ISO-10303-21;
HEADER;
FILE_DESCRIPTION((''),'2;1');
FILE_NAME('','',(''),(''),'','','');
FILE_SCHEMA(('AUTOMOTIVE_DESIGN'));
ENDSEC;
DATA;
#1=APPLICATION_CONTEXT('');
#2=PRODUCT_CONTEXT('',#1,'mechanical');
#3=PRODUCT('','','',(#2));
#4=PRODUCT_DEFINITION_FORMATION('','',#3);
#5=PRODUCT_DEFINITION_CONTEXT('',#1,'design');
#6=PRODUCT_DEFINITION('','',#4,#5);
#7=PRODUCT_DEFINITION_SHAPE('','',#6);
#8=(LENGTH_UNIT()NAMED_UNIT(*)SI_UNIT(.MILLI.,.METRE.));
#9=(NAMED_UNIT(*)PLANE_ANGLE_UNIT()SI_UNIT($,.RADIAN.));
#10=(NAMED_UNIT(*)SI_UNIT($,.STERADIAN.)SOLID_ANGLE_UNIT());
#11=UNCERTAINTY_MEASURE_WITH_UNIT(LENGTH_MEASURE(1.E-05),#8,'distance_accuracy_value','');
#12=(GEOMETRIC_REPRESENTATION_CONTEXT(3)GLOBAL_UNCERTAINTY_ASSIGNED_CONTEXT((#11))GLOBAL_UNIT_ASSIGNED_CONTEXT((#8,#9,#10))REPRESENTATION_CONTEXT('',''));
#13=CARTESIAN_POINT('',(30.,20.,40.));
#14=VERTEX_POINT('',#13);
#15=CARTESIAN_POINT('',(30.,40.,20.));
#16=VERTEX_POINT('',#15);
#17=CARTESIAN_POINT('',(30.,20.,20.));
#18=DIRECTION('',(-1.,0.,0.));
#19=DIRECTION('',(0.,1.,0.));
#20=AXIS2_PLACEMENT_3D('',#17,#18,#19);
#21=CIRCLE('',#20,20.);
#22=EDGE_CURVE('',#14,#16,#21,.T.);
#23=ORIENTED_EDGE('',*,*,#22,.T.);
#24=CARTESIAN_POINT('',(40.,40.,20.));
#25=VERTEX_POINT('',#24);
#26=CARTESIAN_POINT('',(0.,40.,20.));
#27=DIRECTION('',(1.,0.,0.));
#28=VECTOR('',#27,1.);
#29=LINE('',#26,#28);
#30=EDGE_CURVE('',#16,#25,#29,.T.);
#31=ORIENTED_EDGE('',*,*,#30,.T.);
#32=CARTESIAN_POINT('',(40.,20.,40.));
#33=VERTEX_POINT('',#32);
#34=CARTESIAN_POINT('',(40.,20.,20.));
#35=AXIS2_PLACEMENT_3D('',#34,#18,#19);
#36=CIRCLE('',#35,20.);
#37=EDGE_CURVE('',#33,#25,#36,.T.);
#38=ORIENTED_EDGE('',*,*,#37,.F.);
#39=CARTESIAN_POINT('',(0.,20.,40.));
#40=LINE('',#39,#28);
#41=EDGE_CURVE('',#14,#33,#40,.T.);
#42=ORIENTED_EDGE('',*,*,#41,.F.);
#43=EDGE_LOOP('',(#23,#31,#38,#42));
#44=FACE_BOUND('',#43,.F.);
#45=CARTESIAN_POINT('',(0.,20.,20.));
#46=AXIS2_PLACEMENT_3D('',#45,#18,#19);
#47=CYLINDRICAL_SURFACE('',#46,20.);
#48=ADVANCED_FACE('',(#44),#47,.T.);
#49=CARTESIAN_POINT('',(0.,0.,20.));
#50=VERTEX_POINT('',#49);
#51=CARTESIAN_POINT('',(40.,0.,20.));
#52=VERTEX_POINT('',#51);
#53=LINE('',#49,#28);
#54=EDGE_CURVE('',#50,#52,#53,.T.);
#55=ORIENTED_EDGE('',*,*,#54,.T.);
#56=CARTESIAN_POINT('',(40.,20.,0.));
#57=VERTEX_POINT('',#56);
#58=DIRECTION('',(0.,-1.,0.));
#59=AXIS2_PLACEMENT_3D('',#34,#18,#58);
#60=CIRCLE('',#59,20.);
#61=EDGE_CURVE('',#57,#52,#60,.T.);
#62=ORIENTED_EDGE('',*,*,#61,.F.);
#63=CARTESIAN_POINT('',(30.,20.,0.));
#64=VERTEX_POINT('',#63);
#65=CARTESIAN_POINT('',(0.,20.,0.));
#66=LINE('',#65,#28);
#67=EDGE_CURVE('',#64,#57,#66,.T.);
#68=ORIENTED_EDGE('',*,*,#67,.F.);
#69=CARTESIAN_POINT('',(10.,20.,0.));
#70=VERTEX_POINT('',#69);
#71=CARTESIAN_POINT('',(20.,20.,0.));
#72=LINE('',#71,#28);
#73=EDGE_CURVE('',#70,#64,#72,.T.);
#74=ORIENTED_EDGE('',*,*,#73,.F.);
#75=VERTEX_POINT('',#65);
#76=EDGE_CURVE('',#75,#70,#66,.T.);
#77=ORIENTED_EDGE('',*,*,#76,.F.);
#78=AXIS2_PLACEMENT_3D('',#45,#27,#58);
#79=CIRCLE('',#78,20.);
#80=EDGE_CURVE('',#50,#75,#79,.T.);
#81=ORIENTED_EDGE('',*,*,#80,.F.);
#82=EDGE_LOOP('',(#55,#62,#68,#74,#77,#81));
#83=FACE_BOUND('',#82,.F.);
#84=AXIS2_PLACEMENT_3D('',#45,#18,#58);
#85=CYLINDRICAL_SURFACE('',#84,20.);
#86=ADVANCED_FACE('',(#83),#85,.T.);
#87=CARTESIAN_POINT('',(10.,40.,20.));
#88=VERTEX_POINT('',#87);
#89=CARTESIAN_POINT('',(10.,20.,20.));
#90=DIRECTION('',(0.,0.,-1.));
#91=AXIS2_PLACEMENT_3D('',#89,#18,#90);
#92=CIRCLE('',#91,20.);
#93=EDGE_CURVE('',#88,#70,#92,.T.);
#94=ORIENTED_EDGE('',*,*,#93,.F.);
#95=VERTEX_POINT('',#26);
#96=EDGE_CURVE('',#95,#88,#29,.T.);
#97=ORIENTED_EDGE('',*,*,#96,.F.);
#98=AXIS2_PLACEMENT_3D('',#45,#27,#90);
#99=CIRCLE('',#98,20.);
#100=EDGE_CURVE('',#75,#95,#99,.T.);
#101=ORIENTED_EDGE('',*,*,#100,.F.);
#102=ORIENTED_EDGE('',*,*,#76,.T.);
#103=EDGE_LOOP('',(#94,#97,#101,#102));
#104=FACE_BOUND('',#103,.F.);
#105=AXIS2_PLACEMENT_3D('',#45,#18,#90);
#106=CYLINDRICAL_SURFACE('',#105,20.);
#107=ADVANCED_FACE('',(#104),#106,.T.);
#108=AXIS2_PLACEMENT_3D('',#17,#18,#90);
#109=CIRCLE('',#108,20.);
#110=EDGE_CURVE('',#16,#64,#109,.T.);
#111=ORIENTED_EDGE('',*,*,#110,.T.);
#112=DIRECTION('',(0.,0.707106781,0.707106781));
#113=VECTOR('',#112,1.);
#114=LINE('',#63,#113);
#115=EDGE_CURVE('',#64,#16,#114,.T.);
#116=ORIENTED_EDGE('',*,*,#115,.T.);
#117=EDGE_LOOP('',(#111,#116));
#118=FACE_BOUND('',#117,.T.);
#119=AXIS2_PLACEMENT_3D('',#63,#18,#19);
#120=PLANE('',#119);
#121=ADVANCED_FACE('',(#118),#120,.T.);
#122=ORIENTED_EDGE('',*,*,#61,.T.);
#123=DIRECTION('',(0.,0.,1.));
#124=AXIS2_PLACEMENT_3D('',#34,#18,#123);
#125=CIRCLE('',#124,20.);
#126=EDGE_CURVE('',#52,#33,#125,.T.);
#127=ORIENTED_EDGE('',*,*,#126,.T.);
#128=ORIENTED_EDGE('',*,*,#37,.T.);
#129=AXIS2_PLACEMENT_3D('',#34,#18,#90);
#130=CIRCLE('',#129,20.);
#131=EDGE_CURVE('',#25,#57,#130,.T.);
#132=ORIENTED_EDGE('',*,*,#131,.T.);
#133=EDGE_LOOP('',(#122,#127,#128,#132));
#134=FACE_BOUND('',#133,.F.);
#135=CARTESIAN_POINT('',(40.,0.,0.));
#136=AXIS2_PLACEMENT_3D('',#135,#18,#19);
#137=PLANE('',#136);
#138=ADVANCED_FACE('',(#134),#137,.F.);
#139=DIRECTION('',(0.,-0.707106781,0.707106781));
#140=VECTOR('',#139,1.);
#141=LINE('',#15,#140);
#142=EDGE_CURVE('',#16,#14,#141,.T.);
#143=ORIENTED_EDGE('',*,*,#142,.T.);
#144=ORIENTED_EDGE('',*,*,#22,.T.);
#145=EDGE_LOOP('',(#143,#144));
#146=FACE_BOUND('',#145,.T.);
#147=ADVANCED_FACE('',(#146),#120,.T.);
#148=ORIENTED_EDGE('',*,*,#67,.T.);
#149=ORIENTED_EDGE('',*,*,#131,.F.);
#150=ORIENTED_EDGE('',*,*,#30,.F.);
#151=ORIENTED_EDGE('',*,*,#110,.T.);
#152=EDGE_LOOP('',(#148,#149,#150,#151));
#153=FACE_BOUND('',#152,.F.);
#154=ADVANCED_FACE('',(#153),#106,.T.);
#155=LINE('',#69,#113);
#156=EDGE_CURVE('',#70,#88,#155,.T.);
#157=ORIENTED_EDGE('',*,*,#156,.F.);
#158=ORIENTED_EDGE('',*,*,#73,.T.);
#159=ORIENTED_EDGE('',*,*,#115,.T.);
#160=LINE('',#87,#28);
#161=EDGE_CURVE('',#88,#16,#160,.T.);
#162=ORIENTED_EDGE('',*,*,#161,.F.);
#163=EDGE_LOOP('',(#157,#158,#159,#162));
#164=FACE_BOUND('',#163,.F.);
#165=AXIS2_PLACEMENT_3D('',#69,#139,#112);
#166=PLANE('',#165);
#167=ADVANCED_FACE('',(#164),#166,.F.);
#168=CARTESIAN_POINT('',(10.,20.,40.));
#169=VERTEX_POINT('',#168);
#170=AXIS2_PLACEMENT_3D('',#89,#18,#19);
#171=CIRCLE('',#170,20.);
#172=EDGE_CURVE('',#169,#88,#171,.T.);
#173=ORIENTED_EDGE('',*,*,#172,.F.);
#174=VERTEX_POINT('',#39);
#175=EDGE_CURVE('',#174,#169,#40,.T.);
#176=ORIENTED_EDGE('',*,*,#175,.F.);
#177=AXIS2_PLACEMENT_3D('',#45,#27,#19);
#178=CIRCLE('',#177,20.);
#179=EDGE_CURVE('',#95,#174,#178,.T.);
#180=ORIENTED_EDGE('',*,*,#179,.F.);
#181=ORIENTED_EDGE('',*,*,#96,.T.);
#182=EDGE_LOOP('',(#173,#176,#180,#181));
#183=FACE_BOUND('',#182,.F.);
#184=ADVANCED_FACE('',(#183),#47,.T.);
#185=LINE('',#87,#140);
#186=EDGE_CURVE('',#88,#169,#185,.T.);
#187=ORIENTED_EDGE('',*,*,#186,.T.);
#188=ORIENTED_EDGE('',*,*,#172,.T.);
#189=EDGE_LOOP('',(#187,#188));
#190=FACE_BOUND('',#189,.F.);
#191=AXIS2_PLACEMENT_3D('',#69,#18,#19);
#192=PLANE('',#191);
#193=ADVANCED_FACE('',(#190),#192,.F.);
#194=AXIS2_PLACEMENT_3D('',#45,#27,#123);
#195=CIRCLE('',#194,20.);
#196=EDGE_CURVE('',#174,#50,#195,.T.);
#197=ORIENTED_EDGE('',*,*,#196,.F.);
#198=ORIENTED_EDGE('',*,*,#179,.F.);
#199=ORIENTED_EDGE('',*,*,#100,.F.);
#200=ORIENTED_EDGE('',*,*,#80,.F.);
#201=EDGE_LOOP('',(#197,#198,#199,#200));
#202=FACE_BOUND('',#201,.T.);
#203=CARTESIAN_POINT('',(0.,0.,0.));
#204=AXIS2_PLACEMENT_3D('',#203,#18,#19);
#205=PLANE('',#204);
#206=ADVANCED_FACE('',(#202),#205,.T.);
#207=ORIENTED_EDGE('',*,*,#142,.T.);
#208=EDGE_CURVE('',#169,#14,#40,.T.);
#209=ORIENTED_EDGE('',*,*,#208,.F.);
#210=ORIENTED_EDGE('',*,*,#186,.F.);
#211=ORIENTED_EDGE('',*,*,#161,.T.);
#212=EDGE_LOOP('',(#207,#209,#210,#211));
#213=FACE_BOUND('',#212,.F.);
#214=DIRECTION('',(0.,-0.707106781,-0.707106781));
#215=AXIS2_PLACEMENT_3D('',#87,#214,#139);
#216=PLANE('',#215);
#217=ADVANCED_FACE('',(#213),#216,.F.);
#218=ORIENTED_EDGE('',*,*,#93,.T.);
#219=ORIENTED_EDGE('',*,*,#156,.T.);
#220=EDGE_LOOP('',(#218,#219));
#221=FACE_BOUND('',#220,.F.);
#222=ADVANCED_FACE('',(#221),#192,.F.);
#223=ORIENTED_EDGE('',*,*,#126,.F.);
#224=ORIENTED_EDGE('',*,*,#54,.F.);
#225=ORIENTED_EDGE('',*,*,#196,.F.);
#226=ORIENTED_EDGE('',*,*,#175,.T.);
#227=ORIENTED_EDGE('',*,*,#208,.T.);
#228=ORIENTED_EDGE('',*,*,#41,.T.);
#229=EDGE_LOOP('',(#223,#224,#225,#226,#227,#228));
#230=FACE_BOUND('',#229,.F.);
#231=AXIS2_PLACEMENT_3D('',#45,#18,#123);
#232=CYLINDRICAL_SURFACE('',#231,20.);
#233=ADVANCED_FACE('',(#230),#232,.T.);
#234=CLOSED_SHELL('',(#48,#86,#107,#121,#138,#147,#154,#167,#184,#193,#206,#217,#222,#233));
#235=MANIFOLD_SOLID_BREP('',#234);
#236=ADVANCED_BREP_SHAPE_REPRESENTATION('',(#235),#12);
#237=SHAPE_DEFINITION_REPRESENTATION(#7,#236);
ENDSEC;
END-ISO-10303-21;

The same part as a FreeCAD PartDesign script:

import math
import FreeCAD as App
import Part
import Sketcher

doc = App.newDocument("Part")
params = doc.addObject("Spreadsheet::Sheet", "Params")
for row, (alias, value) in enumerate([
    ("sketch1_width", "40 mm"),
    ("pad1_length", "40 mm"),
    ("sketch2_radius", "20 mm"),
    ("pocket1_length", "71 mm"),
    ("sketch3_width", "20 mm"),
    ("pocket2_length", "71 mm"),
    ("sketch4_height", "40 mm"),
    ("pad2_length", "20 mm"),
], start=1):
    params.set(f"A{row}", alias)
    params.set(f"B{row}", "=" + value)
    params.setAlias(f"B{row}", alias)

body = doc.addObject("PartDesign::Body", "Body")

sketch1 = doc.addObject("Sketcher::SketchObject", "Sketch")
body.addObject(sketch1)
sketch1.AttachmentSupport = (doc.XY_Plane, [""])
sketch1.MapMode = "FlatFace"
sketch1.addGeometry([
    Part.LineSegment(App.Vector(0, 40, 0), App.Vector(0, 0, 0)),
    Part.LineSegment(App.Vector(0, 0, 0), App.Vector(40, 0, 0)),
    Part.LineSegment(App.Vector(40, 0, 0), App.Vector(40, 40, 0)),
    Part.LineSegment(App.Vector(40, 40, 0), App.Vector(0, 40, 0)),
], False)
sketch1.addConstraint([
    Sketcher.Constraint("Coincident", 0, 2, 1, 1),
    Sketcher.Constraint("Coincident", 1, 2, 2, 1),
    Sketcher.Constraint("Coincident", 2, 2, 3, 1),
    Sketcher.Constraint("Coincident", 3, 2, 0, 1),
    Sketcher.Constraint("Vertical", 0),
    Sketcher.Constraint("Horizontal", 1),
    Sketcher.Constraint("Vertical", 2),
    Sketcher.Constraint("Horizontal", 3),
    Sketcher.Constraint("Coincident", 0, 2, -1, 1),
    Sketcher.Constraint("Equal", 3, 0),
    Sketcher.Constraint("DistanceX", 1, 1, 1, 2, 40.0),
])
sketch1.setExpression("Constraints[10]", "Params.sketch1_width")
pad1 = doc.addObject("PartDesign::Pad", "Pad")
body.addObject(pad1)
pad1.Profile = sketch1
pad1.setExpression("Length", "Params.pad1_length")

sketch2 = doc.addObject("Sketcher::SketchObject", "Sketch001")
body.addObject(sketch2)
sketch2.AttachmentSupport = (doc.YZ_Plane, [""])
sketch2.MapMode = "FlatFace"
sketch2.addGeometry([
    Part.LineSegment(App.Vector(40, 20, 0), App.Vector(40, 0, 0)),
    Part.LineSegment(App.Vector(40, 0, 0), App.Vector(20, 0, 0)),
    Part.ArcOfCircle(Part.Circle(App.Vector(20, 20, 0), App.Vector(0, 0, 1), 20), math.radians(-90), math.radians(0)),
    Part.LineSegment(App.Vector(40, 40, 0), App.Vector(40, 20, 0)),
    Part.ArcOfCircle(Part.Circle(App.Vector(20, 20, 0), App.Vector(0, 0, 1), 20), math.radians(0), math.radians(90)),
    Part.LineSegment(App.Vector(20, 40, 0), App.Vector(40, 40, 0)),
    Part.LineSegment(App.Vector(0, 40, 0), App.Vector(20, 40, 0)),
    Part.ArcOfCircle(Part.Circle(App.Vector(20, 20, 0), App.Vector(0, 0, 1), 20), math.radians(90), math.radians(180)),
    Part.LineSegment(App.Vector(0, 20, 0), App.Vector(0, 40, 0)),
    Part.ArcOfCircle(Part.Circle(App.Vector(20, 20, 0), App.Vector(0, 0, 1), 20), math.radians(180), math.radians(270)),
    Part.LineSegment(App.Vector(20, 0, 0), App.Vector(0, 0, 0)),
    Part.LineSegment(App.Vector(0, 0, 0), App.Vector(0, 20, 0)),
], False)
sketch2.addConstraint([
    Sketcher.Constraint("Coincident", 0, 2, 1, 1),
    Sketcher.Constraint("Tangent", 1, 2, 2, 1),
    Sketcher.Constraint("Tangent", 2, 2, 0, 1),
    Sketcher.Constraint("Tangent", 3, 2, 4, 1),
    Sketcher.Constraint("Tangent", 4, 2, 5, 1),
    Sketcher.Constraint("Coincident", 5, 2, 3, 1),
    Sketcher.Constraint("Tangent", 6, 2, 7, 1),
    Sketcher.Constraint("Tangent", 7, 2, 8, 1),
    Sketcher.Constraint("Coincident", 8, 2, 6, 1),
    Sketcher.Constraint("Tangent", 9, 2, 10, 1),
    Sketcher.Constraint("Coincident", 10, 2, 11, 1),
    Sketcher.Constraint("Tangent", 11, 2, 9, 1),
    Sketcher.Constraint("Vertical", 0),
    Sketcher.Constraint("Horizontal", 1),
    Sketcher.Constraint("Vertical", 3),
    Sketcher.Constraint("Horizontal", 5),
    Sketcher.Constraint("Horizontal", 6),
    Sketcher.Constraint("Vertical", 8),
    Sketcher.Constraint("Horizontal", 10),
    Sketcher.Constraint("Vertical", 11),
    Sketcher.Constraint("Coincident", 10, 2, -1, 1),
    Sketcher.Constraint("Coincident", 4, 3, 2, 3),
    Sketcher.Constraint("Coincident", 7, 3, 2, 3),
    Sketcher.Constraint("Coincident", 9, 3, 2, 3),
    Sketcher.Constraint("Equal", 2, 4),
    Sketcher.Constraint("Equal", 4, 7),
    Sketcher.Constraint("Equal", 7, 9),
    Sketcher.Constraint("Radius", 2, 20.0),
])
sketch2.setExpression("Constraints[27]", "Params.sketch2_radius")
pocket1 = doc.addObject("PartDesign::Pocket", "Pocket")
body.addObject(pocket1)
pocket1.Profile = sketch2
pocket1.setExpression("Length", "Params.pocket1_length")
pocket1.Reversed = True

sketch3 = doc.addObject("Sketcher::SketchObject", "Sketch002")
body.addObject(sketch3)
sketch3.AttachmentSupport = (doc.XY_Plane, [""])
sketch3.MapMode = "FlatFace"
sketch3.addGeometry([
    Part.LineSegment(App.Vector(10, 40, 0), App.Vector(10, 20, 0)),
    Part.LineSegment(App.Vector(10, 20, 0), App.Vector(30, 20, 0)),
    Part.LineSegment(App.Vector(30, 20, 0), App.Vector(30, 40, 0)),
    Part.LineSegment(App.Vector(30, 40, 0), App.Vector(10, 40, 0)),
], False)
sketch3.addConstraint([
    Sketcher.Constraint("Coincident", 0, 2, 1, 1),
    Sketcher.Constraint("Coincident", 1, 2, 2, 1),
    Sketcher.Constraint("Coincident", 2, 2, 3, 1),
    Sketcher.Constraint("Coincident", 3, 2, 0, 1),
    Sketcher.Constraint("Vertical", 0),
    Sketcher.Constraint("Horizontal", 1),
    Sketcher.Constraint("Vertical", 2),
    Sketcher.Constraint("Horizontal", 3),
    Sketcher.Constraint("Equal", 3, 0),
    Sketcher.Constraint("DistanceX", 1, 1, 1, 2, 20.0),
    Sketcher.Constraint("DistanceX", -1, 1, 0, 2, 10.0),
    Sketcher.Constraint("DistanceY", -1, 1, 0, 2, 20.0),
])
sketch3.setExpression("Constraints[9]", "Params.sketch3_width")
pocket2 = doc.addObject("PartDesign::Pocket", "Pocket001")
body.addObject(pocket2)
pocket2.Profile = sketch3
pocket2.setExpression("Length", "Params.pocket2_length")
pocket2.Reversed = True

sketch4 = doc.addObject("Sketcher::SketchObject", "Sketch003")
body.addObject(sketch4)
sketch4.AttachmentSupport = (doc.YZ_Plane, [""])
sketch4.MapMode = "FlatFace"
sketch4.AttachmentOffset = App.Placement(App.Vector(0, 0, 10), App.Rotation())
sketch4.addGeometry([
    Part.LineSegment(App.Vector(20, 40, 0), App.Vector(20, 0, 0)),
    Part.LineSegment(App.Vector(20, 0, 0), App.Vector(40, 20, 0)),
    Part.LineSegment(App.Vector(40, 20, 0), App.Vector(20, 40, 0)),
], False)
sketch4.addConstraint([
    Sketcher.Constraint("Coincident", 0, 2, 1, 1),
    Sketcher.Constraint("Coincident", 1, 2, 2, 1),
    Sketcher.Constraint("Coincident", 2, 2, 0, 1),
    Sketcher.Constraint("Vertical", 0),
    Sketcher.Constraint("PointOnObject", 0, 2, -1),
    Sketcher.Constraint("Perpendicular", 1, 2),
    Sketcher.Constraint("Equal", 1, 2),
    Sketcher.Constraint("DistanceY", 0, 2, 0, 1, 40.0),
    Sketcher.Constraint("DistanceX", -1, 1, 0, 2, 20.0),
])
sketch4.setExpression("Constraints[7]", "Params.sketch4_height")
pad2 = doc.addObject("PartDesign::Pad", "Pad001")
body.addObject(pad2)
pad2.Profile = sketch4
pad2.setExpression("Length", "Params.pad2_length")

doc.recompute()
